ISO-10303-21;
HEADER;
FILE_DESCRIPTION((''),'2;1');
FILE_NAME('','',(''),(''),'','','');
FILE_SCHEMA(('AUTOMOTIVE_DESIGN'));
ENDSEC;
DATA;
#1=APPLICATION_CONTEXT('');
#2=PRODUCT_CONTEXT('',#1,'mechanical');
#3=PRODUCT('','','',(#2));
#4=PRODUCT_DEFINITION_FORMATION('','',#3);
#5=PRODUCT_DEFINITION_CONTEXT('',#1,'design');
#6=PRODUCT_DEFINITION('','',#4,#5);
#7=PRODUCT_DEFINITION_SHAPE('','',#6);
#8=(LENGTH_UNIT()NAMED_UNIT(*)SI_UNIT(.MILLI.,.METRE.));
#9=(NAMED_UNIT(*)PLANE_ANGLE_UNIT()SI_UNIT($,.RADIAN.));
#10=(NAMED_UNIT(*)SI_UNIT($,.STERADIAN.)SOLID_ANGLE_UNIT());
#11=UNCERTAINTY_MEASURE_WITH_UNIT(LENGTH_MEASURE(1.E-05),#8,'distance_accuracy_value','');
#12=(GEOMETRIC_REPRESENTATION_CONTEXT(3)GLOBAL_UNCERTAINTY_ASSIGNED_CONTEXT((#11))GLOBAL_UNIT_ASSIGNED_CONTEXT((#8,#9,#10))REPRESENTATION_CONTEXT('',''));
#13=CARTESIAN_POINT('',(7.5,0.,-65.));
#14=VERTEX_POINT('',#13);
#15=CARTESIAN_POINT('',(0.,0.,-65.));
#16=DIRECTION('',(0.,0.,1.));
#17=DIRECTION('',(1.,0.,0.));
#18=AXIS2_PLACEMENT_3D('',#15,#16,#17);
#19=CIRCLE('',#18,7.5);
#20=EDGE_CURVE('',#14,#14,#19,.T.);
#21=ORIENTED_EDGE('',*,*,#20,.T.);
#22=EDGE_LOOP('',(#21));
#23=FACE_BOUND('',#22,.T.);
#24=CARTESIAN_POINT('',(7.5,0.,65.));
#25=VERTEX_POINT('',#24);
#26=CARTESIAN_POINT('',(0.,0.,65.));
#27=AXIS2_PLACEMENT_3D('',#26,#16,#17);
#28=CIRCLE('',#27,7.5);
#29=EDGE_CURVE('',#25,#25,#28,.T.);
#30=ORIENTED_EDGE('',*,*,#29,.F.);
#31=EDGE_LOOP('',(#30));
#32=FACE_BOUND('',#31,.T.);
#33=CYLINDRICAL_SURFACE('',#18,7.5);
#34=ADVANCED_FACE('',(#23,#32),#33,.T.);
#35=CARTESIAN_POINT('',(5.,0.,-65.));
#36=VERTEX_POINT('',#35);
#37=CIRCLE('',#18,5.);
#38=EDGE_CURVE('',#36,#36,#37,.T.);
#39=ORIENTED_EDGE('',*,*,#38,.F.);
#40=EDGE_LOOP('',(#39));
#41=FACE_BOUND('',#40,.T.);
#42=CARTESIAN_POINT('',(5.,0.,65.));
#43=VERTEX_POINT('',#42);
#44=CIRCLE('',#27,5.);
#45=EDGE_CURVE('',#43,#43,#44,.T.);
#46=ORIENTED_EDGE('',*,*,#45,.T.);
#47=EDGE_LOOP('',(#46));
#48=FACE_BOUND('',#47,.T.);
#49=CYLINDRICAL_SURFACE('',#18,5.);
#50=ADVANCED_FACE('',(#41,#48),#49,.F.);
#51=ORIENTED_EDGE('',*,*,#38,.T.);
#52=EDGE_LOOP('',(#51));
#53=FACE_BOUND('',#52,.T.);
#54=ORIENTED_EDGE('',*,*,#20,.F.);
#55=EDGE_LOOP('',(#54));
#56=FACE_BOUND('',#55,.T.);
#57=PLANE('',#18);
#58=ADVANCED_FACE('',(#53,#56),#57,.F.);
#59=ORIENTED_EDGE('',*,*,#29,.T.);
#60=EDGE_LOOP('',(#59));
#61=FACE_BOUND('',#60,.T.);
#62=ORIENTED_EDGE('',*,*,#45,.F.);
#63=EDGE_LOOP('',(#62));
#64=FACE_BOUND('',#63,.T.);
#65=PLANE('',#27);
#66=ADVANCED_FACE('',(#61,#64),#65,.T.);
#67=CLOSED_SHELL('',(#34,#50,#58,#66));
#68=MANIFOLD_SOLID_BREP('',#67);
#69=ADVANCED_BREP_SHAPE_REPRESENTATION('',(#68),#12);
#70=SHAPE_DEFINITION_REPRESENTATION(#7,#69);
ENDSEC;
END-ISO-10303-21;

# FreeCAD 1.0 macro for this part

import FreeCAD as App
import Part
import Sketcher
from FreeCAD import Vector

doc = App.newDocument("Part")
body = doc.addObject("PartDesign::Body", "Body")

# Sketch on XY plane
sketch1 = body.newObject("Sketcher::SketchObject", "Sketch")
sketch1.AttachmentSupport = (doc.getObject("XY_Plane"), [""])
sketch1.MapMode = "FlatFace"
sketch1.addGeometry([
    Part.Circle(Vector(0, 0, 0), Vector(0, 0, 1), 7.5),
    Part.Circle(Vector(0, 0, 0), Vector(0, 0, 1), 5),
], False)
sketch1.addConstraint([
    Sketcher.Constraint("Coincident", 0, 3, -1, 1),
    Sketcher.Constraint("Coincident", 1, 3, -1, 1),
    Sketcher.Constraint("Diameter", 0, 15.0),
    Sketcher.Constraint("Diameter", 1, 10.0),
])
pad1 = body.newObject("PartDesign::Pad", "Pad")
pad1.Profile = sketch1
pad1.Type = "TwoLengths"
pad1.Length = 65
pad1.Length2 = 65

doc.recompute()
